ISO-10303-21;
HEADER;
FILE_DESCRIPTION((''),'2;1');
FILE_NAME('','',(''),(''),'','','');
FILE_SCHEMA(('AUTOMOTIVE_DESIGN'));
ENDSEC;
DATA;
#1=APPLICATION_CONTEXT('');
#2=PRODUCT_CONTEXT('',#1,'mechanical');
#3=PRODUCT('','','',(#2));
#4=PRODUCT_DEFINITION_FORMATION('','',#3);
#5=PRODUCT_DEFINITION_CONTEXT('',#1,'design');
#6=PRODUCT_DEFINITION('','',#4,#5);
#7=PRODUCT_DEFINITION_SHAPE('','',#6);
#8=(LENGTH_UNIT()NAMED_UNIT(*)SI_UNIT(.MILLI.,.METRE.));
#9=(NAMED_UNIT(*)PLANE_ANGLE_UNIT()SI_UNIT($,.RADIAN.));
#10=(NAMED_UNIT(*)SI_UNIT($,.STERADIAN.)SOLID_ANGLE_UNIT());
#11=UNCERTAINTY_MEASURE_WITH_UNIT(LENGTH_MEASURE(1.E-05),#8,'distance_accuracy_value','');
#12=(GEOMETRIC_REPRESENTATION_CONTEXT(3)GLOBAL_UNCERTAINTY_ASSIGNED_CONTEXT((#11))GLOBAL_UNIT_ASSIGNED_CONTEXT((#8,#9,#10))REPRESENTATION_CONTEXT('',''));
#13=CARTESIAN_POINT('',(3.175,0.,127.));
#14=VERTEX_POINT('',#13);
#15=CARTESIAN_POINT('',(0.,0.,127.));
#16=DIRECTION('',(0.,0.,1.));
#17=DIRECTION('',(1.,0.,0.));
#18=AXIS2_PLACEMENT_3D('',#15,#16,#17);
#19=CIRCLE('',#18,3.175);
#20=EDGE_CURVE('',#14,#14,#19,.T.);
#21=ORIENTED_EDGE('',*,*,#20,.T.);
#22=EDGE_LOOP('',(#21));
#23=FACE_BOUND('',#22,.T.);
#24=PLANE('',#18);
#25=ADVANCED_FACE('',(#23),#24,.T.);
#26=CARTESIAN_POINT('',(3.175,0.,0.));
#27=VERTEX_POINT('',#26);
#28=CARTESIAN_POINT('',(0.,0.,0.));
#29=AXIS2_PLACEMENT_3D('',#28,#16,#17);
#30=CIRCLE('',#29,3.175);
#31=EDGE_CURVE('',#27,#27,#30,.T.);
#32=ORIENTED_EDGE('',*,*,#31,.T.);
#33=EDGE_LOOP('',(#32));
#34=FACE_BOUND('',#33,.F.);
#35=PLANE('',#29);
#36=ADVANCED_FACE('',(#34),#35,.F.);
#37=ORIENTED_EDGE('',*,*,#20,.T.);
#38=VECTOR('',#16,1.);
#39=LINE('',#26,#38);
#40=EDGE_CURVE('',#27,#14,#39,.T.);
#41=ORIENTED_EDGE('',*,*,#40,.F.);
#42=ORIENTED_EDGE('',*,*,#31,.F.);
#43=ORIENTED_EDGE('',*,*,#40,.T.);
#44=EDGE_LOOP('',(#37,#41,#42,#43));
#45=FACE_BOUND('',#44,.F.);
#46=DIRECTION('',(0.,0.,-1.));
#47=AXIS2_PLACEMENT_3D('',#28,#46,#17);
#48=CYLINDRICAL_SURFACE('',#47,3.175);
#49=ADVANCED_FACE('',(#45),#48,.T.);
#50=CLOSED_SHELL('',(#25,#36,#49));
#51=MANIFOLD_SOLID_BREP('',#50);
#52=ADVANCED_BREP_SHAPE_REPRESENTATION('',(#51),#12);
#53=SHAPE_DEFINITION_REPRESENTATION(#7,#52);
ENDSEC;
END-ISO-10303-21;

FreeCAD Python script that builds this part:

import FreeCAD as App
import Part
import Sketcher
from FreeCAD import Vector
Q = App.Units.Quantity

doc = App.newDocument("Part")
params = doc.addObject("Spreadsheet::Sheet", "Params")
for row, (alias, value) in enumerate([
    ("sketch1_diameter", "0.25 in"),
    ("pad1_length", "5 in"),
], start=1):
    params.set(f"A{row}", alias)
    params.set(f"B{row}", "=" + value)
    params.setAlias(f"B{row}", alias)

body = doc.addObject("PartDesign::Body", "Body")

sketch1 = body.newObject("Sketcher::SketchObject", "Sketch")
sketch1.AttachmentSupport = (doc.getObject("XY_Plane"), [""])
sketch1.MapMode = "FlatFace"
sketch1.addGeometry(Part.Circle(Vector(0, 0, 0), Vector(0, 0, 1), 3.2), False)
sketch1.addConstraint([
    Sketcher.Constraint("Coincident", 0, 3, -1, 1),
    Sketcher.Constraint("Diameter", 0, Q("0.25 in")),
])
sketch1.setExpression("Constraints[1]", "Params.sketch1_diameter")
pad1 = body.newObject("PartDesign::Pad", "Pad")
pad1.Profile = sketch1
pad1.setExpression("Length", "Params.pad1_length")

doc.recompute()
